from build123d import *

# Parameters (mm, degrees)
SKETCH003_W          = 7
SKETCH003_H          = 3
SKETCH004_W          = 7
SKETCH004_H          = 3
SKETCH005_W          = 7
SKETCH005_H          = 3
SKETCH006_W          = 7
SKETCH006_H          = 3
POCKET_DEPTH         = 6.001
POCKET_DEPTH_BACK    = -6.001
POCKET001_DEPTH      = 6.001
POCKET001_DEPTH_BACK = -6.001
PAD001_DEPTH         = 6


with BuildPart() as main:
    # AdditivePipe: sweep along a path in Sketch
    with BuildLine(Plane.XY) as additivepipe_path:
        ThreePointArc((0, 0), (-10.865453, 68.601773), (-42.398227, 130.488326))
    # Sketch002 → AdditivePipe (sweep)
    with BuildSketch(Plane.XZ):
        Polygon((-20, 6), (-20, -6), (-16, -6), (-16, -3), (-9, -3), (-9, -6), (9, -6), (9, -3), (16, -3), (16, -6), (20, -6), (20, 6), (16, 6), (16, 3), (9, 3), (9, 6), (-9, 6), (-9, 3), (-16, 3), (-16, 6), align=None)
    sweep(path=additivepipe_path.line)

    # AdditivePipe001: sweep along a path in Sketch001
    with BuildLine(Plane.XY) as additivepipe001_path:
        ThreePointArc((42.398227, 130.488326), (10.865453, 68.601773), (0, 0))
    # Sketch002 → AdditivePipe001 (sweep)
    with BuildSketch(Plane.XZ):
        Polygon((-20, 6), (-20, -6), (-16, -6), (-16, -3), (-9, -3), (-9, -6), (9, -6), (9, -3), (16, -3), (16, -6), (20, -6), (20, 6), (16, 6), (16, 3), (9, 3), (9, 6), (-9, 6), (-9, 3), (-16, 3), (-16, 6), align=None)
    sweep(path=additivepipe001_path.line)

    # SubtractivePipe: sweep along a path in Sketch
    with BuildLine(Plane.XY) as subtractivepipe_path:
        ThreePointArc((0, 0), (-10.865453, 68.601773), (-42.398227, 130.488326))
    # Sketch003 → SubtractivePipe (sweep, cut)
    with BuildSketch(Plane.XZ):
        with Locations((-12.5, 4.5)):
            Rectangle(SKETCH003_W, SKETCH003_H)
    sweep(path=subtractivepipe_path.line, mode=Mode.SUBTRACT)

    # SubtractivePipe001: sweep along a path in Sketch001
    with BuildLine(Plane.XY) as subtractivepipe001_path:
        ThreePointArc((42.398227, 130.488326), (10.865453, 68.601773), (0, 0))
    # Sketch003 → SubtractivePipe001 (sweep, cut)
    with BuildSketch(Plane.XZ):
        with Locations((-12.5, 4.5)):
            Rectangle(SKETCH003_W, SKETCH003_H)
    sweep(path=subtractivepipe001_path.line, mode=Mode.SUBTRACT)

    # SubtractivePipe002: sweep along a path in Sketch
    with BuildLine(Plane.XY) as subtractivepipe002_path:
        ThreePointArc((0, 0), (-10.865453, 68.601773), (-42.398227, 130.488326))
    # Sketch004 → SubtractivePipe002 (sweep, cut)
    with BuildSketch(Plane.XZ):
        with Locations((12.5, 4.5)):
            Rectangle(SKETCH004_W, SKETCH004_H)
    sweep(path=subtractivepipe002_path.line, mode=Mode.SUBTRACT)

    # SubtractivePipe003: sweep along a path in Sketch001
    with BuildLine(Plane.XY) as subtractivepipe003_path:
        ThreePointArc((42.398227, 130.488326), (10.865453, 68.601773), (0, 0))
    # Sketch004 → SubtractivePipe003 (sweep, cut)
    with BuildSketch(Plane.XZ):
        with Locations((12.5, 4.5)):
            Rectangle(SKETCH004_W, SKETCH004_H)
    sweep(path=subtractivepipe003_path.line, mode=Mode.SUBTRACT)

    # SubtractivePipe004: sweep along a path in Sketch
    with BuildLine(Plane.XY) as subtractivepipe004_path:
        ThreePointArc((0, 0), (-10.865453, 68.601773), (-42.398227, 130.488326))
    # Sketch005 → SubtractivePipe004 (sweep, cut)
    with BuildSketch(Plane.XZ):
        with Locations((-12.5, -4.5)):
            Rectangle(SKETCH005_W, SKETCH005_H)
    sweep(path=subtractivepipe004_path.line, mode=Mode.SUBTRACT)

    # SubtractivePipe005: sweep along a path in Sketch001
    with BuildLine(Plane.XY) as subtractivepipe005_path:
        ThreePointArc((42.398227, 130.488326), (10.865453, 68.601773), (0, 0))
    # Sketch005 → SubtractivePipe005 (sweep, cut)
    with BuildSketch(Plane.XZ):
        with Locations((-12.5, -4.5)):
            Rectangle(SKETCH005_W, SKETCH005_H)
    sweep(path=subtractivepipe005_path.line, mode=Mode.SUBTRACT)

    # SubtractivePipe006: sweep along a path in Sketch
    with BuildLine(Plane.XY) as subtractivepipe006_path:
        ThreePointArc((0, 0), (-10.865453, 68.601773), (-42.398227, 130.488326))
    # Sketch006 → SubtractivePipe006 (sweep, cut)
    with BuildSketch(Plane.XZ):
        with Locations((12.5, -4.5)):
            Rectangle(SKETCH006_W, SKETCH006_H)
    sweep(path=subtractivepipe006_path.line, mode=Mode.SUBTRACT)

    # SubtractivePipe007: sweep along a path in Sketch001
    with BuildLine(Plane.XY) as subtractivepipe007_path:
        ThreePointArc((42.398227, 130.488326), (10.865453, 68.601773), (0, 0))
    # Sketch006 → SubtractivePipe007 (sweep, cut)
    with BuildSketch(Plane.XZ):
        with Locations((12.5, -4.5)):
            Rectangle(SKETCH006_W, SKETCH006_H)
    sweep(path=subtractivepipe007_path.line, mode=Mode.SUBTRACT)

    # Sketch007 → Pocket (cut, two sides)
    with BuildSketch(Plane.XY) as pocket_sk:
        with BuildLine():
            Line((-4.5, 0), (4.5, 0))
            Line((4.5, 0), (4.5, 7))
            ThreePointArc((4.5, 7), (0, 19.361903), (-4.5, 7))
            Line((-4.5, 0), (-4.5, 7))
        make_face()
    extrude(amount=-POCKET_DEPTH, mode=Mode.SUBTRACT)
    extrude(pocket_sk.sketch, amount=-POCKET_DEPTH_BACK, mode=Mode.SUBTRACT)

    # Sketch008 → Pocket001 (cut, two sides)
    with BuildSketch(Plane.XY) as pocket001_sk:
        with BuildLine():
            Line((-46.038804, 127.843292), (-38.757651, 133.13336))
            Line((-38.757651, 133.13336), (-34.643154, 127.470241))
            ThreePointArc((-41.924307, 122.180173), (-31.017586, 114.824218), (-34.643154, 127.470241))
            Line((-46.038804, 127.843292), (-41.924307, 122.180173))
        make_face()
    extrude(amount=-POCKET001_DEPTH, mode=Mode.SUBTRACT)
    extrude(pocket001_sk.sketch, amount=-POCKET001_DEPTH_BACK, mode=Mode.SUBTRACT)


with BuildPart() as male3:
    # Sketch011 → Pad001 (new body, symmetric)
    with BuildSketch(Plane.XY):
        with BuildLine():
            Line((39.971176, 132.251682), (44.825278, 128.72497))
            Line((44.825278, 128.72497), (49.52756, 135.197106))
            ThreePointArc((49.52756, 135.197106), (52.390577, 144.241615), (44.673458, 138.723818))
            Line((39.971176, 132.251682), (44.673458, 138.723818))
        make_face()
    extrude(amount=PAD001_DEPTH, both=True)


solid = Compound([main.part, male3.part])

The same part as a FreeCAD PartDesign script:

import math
import FreeCAD as App
import Part
import Sketcher
Q = App.Units.Quantity


def add_polygon(sketch, points):
    """Adds a closed chain of lines whose ends are joined by coincident constraints."""
    first, n = sketch.GeometryCount, len(points)
    for a, b in zip(points, points[1:] + points[:1]):
        sketch.addGeometry(Part.LineSegment(App.Vector(*a, 0), App.Vector(*b, 0)), False)
    for i in range(n):
        sketch.addConstraint(Sketcher.Constraint("Coincident", first + i, 2, first + (i + 1) % n, 1))

doc = App.newDocument("Part")
body = doc.addObject("PartDesign::Body", "Body")

# Sketch on XZ plane
sketch1 = body.newObject("Sketcher::SketchObject", "Sketch")
sketch1.AttachmentSupport = (doc.getObject("XZ_Plane"), [""])
sketch1.MapMode = "FlatFace"
add_polygon(sketch1, [(-20, 6), (-20, -6), (-16, -6), (-16, -3), (-9, -3), (-9, -6), (9, -6), (9, -3), (16, -3), (16, -6), (20, -6), (20, 6), (16, 6), (16, 3), (9, 3), (9, 6), (-9, 6), (-9, 3), (-16, 3), (-16, 6)])  # lines 0-19
sketch1.addConstraint(Sketcher.Constraint("Vertical", 0))
sketch1.addConstraint(Sketcher.Constraint("Horizontal", 1))
sketch1.addConstraint(Sketcher.Constraint("Vertical", 2))
sketch1.addConstraint(Sketcher.Constraint("Horizontal", 3))
sketch1.addConstraint(Sketcher.Constraint("Vertical", 4))
sketch1.addConstraint(Sketcher.Constraint("Horizontal", 5))
sketch1.addConstraint(Sketcher.Constraint("Vertical", 6))
sketch1.addConstraint(Sketcher.Constraint("Horizontal", 7))
sketch1.addConstraint(Sketcher.Constraint("Vertical", 8))
sketch1.addConstraint(Sketcher.Constraint("Horizontal", 9))
sketch1.addConstraint(Sketcher.Constraint("Vertical", 10))
sketch1.addConstraint(Sketcher.Constraint("Horizontal", 11))
sketch1.addConstraint(Sketcher.Constraint("Vertical", 12))
sketch1.addConstraint(Sketcher.Constraint("Horizontal", 13))
sketch1.addConstraint(Sketcher.Constraint("Vertical", 14))
sketch1.addConstraint(Sketcher.Constraint("Horizontal", 15))
sketch1.addConstraint(Sketcher.Constraint("Vertical", 16))
sketch1.addConstraint(Sketcher.Constraint("Horizontal", 17))
sketch1.addConstraint(Sketcher.Constraint("Vertical", 18))
sketch1.addConstraint(Sketcher.Constraint("Horizontal", 19))
sketch1.addConstraint(Sketcher.Constraint("Symmetric", 0, 2, 10, 2, -1, 1))
sketch1.addConstraint(Sketcher.Constraint("Symmetric", 2, 2, 12, 2, -1, 1))
sketch1.addConstraint(Sketcher.Constraint("Symmetric", 4, 2, 14, 2, -1, 1))
sketch1.addConstraint(Sketcher.Constraint("Symmetric", 6, 2, 16, 2, -1, 1))
sketch1.addConstraint(Sketcher.Constraint("Symmetric", 8, 2, 18, 2, -1, 1))
sketch1.addConstraint(Sketcher.Constraint("Symmetric", 3, 2, 6, 2, -2))
sketch1.addConstraint(Sketcher.Constraint("Symmetric", 1, 2, 8, 2, -2))
sketch1.addConstraint(Sketcher.Constraint("Horizontal", 1, 2, 4, 2))
sketch1.addConstraint(Sketcher.Constraint("DistanceX", 1, 1, 1, 2, Q("4 mm")))
sketch1.addConstraint(Sketcher.Constraint("DistanceX", 3, 1, 3, 2, Q("7 mm")))
sketch1.addConstraint(Sketcher.Constraint("DistanceX", 5, 1, 5, 2, Q("18 mm")))
sketch1.addConstraint(Sketcher.Constraint("DistanceY", 0, 2, 0, 1, Q("12 mm")))
sketch1.addConstraint(Sketcher.Constraint("DistanceY", 2, 1, 2, 2, Q("3 mm")))

# Sketch on XY plane
sketch2 = body.newObject("Sketcher::SketchObject", "Sketch001")
sketch2.AttachmentSupport = (doc.getObject("XY_Plane"), [""])
sketch2.MapMode = "FlatFace"
sketch2.addGeometry(Part.ArcOfCircle(Part.Circle(App.Vector(-222, 0, 0), App.Vector(0, 0, 1), 222), math.radians(0), math.radians(36)), False)
sketch2.addConstraint(Sketcher.Constraint("Coincident", 0, 1, -1, 1))
sketch2.addConstraint(Sketcher.Constraint("Radius", 0, Q("221.999993 mm")))
sketch2.addConstraint(Sketcher.Constraint("DistanceX", 0, 2, -1, 1, Q("42.398227 mm")))
sketch2.addConstraint(Sketcher.Constraint("DistanceY", -1, 1, 0, 2, Q("130.488326 mm")))
doc.recompute()

additivepipe = body.newObject("PartDesign::AdditivePipe", "AdditivePipe")
additivepipe.Profile = sketch1
additivepipe.Spine = (sketch2, ["Edge1"])

# Sketch on XZ plane
sketch3 = body.newObject("Sketcher::SketchObject", "Sketch002")
sketch3.AttachmentSupport = (doc.getObject("XZ_Plane"), [""])
sketch3.MapMode = "FlatFace"
add_polygon(sketch3, [(-20, 6), (-20, -6), (-16, -6), (-16, -3), (-9, -3), (-9, -6), (9, -6), (9, -3), (16, -3), (16, -6), (20, -6), (20, 6), (16, 6), (16, 3), (9, 3), (9, 6), (-9, 6), (-9, 3), (-16, 3), (-16, 6)])  # lines 0-19
sketch3.addConstraint(Sketcher.Constraint("Vertical", 0))
sketch3.addConstraint(Sketcher.Constraint("Horizontal", 1))
sketch3.addConstraint(Sketcher.Constraint("Vertical", 2))
sketch3.addConstraint(Sketcher.Constraint("Horizontal", 3))
sketch3.addConstraint(Sketcher.Constraint("Vertical", 4))
sketch3.addConstraint(Sketcher.Constraint("Horizontal", 5))
sketch3.addConstraint(Sketcher.Constraint("Vertical", 6))
sketch3.addConstraint(Sketcher.Constraint("Horizontal", 7))
sketch3.addConstraint(Sketcher.Constraint("Vertical", 8))
sketch3.addConstraint(Sketcher.Constraint("Horizontal", 9))
sketch3.addConstraint(Sketcher.Constraint("Vertical", 10))
sketch3.addConstraint(Sketcher.Constraint("Horizontal", 11))
sketch3.addConstraint(Sketcher.Constraint("Vertical", 12))
sketch3.addConstraint(Sketcher.Constraint("Horizontal", 13))
sketch3.addConstraint(Sketcher.Constraint("Vertical", 14))
sketch3.addConstraint(Sketcher.Constraint("Horizontal", 15))
sketch3.addConstraint(Sketcher.Constraint("Vertical", 16))
sketch3.addConstraint(Sketcher.Constraint("Horizontal", 17))
sketch3.addConstraint(Sketcher.Constraint("Vertical", 18))
sketch3.addConstraint(Sketcher.Constraint("Horizontal", 19))
sketch3.addConstraint(Sketcher.Constraint("Symmetric", 0, 2, 10, 2, -1, 1))
sketch3.addConstraint(Sketcher.Constraint("Symmetric", 2, 2, 12, 2, -1, 1))
sketch3.addConstraint(Sketcher.Constraint("Symmetric", 4, 2, 14, 2, -1, 1))
sketch3.addConstraint(Sketcher.Constraint("Symmetric", 6, 2, 16, 2, -1, 1))
sketch3.addConstraint(Sketcher.Constraint("Symmetric", 8, 2, 18, 2, -1, 1))
sketch3.addConstraint(Sketcher.Constraint("Symmetric", 3, 2, 6, 2, -2))
sketch3.addConstraint(Sketcher.Constraint("Symmetric", 1, 2, 8, 2, -2))
sketch3.addConstraint(Sketcher.Constraint("Horizontal", 1, 2, 4, 2))
sketch3.addConstraint(Sketcher.Constraint("DistanceX", 1, 1, 1, 2, Q("4 mm")))
sketch3.addConstraint(Sketcher.Constraint("DistanceX", 3, 1, 3, 2, Q("7 mm")))
sketch3.addConstraint(Sketcher.Constraint("DistanceX", 5, 1, 5, 2, Q("18 mm")))
sketch3.addConstraint(Sketcher.Constraint("DistanceY", 0, 2, 0, 1, Q("12 mm")))
sketch3.addConstraint(Sketcher.Constraint("DistanceY", 2, 1, 2, 2, Q("3 mm")))

# Sketch on XY plane
sketch4 = body.newObject("Sketcher::SketchObject", "Sketch003")
sketch4.AttachmentSupport = (doc.getObject("XY_Plane"), [""])
sketch4.MapMode = "FlatFace"
sketch4.addGeometry(Part.ArcOfCircle(Part.Circle(App.Vector(222, 0, 0), App.Vector(0, 0, 1), 222), math.radians(144), math.radians(180)), False)
sketch4.addConstraint(Sketcher.Constraint("Coincident", 0, 2, -1, 1))
sketch4.addConstraint(Sketcher.Constraint("Radius", 0, Q("221.999993 mm")))
sketch4.addConstraint(Sketcher.Constraint("DistanceX", -1, 1, 0, 1, Q("42.398227 mm")))
sketch4.addConstraint(Sketcher.Constraint("DistanceY", -1, 1, 0, 1, Q("130.488326 mm")))
doc.recompute()

additivepipe2 = body.newObject("PartDesign::AdditivePipe", "AdditivePipe001")
additivepipe2.Profile = sketch3
additivepipe2.Spine = (sketch4, ["Edge1"])

# Sketch on XZ plane
sketch5 = body.newObject("Sketcher::SketchObject", "Sketch004")
sketch5.AttachmentSupport = (doc.getObject("XZ_Plane"), [""])
sketch5.MapMode = "FlatFace"
add_polygon(sketch5, [(-16, 6), (-16, 3), (-9, 3), (-9, 6)])  # lines 0-3
sketch5.addConstraint(Sketcher.Constraint("Vertical", 0))
sketch5.addConstraint(Sketcher.Constraint("Horizontal", 1))
sketch5.addConstraint(Sketcher.Constraint("Vertical", 2))
sketch5.addConstraint(Sketcher.Constraint("Horizontal", 3))
sketch5.addConstraint(Sketcher.Constraint("DistanceX", 1, 1, 1, 2, Q("7 mm")))
sketch5.addConstraint(Sketcher.Constraint("DistanceY", 0, 2, 0, 1, Q("3 mm")))
sketch5.addConstraint(Sketcher.Constraint("DistanceX", 0, 2, -1, 1, Q("16 mm")))
sketch5.addConstraint(Sketcher.Constraint("DistanceY", -1, 1, 0, 2, Q("3 mm")))

# Sketch on XY plane
sketch6 = body.newObject("Sketcher::SketchObject", "Sketch005")
sketch6.AttachmentSupport = (doc.getObject("XY_Plane"), [""])
sketch6.MapMode = "FlatFace"
sketch6.addGeometry(Part.ArcOfCircle(Part.Circle(App.Vector(-222, 0, 0), App.Vector(0, 0, 1), 222), math.radians(0), math.radians(36)), False)
sketch6.addConstraint(Sketcher.Constraint("Coincident", 0, 1, -1, 1))
sketch6.addConstraint(Sketcher.Constraint("Radius", 0, Q("221.999993 mm")))
sketch6.addConstraint(Sketcher.Constraint("DistanceX", 0, 2, -1, 1, Q("42.398227 mm")))
sketch6.addConstraint(Sketcher.Constraint("DistanceY", -1, 1, 0, 2, Q("130.488326 mm")))
doc.recompute()

subtractivepipe = body.newObject("PartDesign::SubtractivePipe", "SubtractivePipe")
subtractivepipe.Profile = sketch5
subtractivepipe.Spine = (sketch6, ["Edge1"])

# Sketch on XZ plane
sketch7 = body.newObject("Sketcher::SketchObject", "Sketch006")
sketch7.AttachmentSupport = (doc.getObject("XZ_Plane"), [""])
sketch7.MapMode = "FlatFace"
add_polygon(sketch7, [(-16, 6), (-16, 3), (-9, 3), (-9, 6)])  # lines 0-3
sketch7.addConstraint(Sketcher.Constraint("Vertical", 0))
sketch7.addConstraint(Sketcher.Constraint("Horizontal", 1))
sketch7.addConstraint(Sketcher.Constraint("Vertical", 2))
sketch7.addConstraint(Sketcher.Constraint("Horizontal", 3))
sketch7.addConstraint(Sketcher.Constraint("DistanceX", 1, 1, 1, 2, Q("7 mm")))
sketch7.addConstraint(Sketcher.Constraint("DistanceY", 0, 2, 0, 1, Q("3 mm")))
sketch7.addConstraint(Sketcher.Constraint("DistanceX", 0, 2, -1, 1, Q("16 mm")))
sketch7.addConstraint(Sketcher.Constraint("DistanceY", -1, 1, 0, 2, Q("3 mm")))

# Sketch on XY plane
sketch8 = body.newObject("Sketcher::SketchObject", "Sketch007")
sketch8.AttachmentSupport = (doc.getObject("XY_Plane"), [""])
sketch8.MapMode = "FlatFace"
sketch8.addGeometry(Part.ArcOfCircle(Part.Circle(App.Vector(222, 0, 0), App.Vector(0, 0, 1), 222), math.radians(144), math.radians(180)), False)
sketch8.addConstraint(Sketcher.Constraint("Coincident", 0, 2, -1, 1))
sketch8.addConstraint(Sketcher.Constraint("Radius", 0, Q("221.999993 mm")))
sketch8.addConstraint(Sketcher.Constraint("DistanceX", -1, 1, 0, 1, Q("42.398227 mm")))
sketch8.addConstraint(Sketcher.Constraint("DistanceY", -1, 1, 0, 1, Q("130.488326 mm")))
doc.recompute()

subtractivepipe2 = body.newObject("PartDesign::SubtractivePipe", "SubtractivePipe001")
subtractivepipe2.Profile = sketch7
subtractivepipe2.Spine = (sketch8, ["Edge1"])

# Sketch on XZ plane
sketch9 = body.newObject("Sketcher::SketchObject", "Sketch008")
sketch9.AttachmentSupport = (doc.getObject("XZ_Plane"), [""])
sketch9.MapMode = "FlatFace"
add_polygon(sketch9, [(9, 6), (9, 3), (16, 3), (16, 6)])  # lines 0-3
sketch9.addConstraint(Sketcher.Constraint("Vertical", 0))
sketch9.addConstraint(Sketcher.Constraint("Horizontal", 1))
sketch9.addConstraint(Sketcher.Constraint("Vertical", 2))
sketch9.addConstraint(Sketcher.Constraint("Horizontal", 3))
sketch9.addConstraint(Sketcher.Constraint("DistanceX", 1, 1, 1, 2, Q("7 mm")))
sketch9.addConstraint(Sketcher.Constraint("DistanceY", 0, 2, 0, 1, Q("3 mm")))
sketch9.addConstraint(Sketcher.Constraint("DistanceX", -1, 1, 0, 2, Q("9 mm")))
sketch9.addConstraint(Sketcher.Constraint("DistanceY", -1, 1, 0, 2, Q("3 mm")))

# Sketch on XY plane
sketch10 = body.newObject("Sketcher::SketchObject", "Sketch009")
sketch10.AttachmentSupport = (doc.getObject("XY_Plane"), [""])
sketch10.MapMode = "FlatFace"
sketch10.addGeometry(Part.ArcOfCircle(Part.Circle(App.Vector(-222, 0, 0), App.Vector(0, 0, 1), 222), math.radians(0), math.radians(36)), False)
sketch10.addConstraint(Sketcher.Constraint("Coincident", 0, 1, -1, 1))
sketch10.addConstraint(Sketcher.Constraint("Radius", 0, Q("221.999993 mm")))
sketch10.addConstraint(Sketcher.Constraint("DistanceX", 0, 2, -1, 1, Q("42.398227 mm")))
sketch10.addConstraint(Sketcher.Constraint("DistanceY", -1, 1, 0, 2, Q("130.488326 mm")))
doc.recompute()

subtractivepipe3 = body.newObject("PartDesign::SubtractivePipe", "SubtractivePipe002")
subtractivepipe3.Profile = sketch9
subtractivepipe3.Spine = (sketch10, ["Edge1"])

# Sketch on XZ plane
sketch11 = body.newObject("Sketcher::SketchObject", "Sketch010")
sketch11.AttachmentSupport = (doc.getObject("XZ_Plane"), [""])
sketch11.MapMode = "FlatFace"
add_polygon(sketch11, [(9, 6), (9, 3), (16, 3), (16, 6)])  # lines 0-3
sketch11.addConstraint(Sketcher.Constraint("Vertical", 0))
sketch11.addConstraint(Sketcher.Constraint("Horizontal", 1))
sketch11.addConstraint(Sketcher.Constraint("Vertical", 2))
sketch11.addConstraint(Sketcher.Constraint("Horizontal", 3))
sketch11.addConstraint(Sketcher.Constraint("DistanceX", 1, 1, 1, 2, Q("7 mm")))
sketch11.addConstraint(Sketcher.Constraint("DistanceY", 0, 2, 0, 1, Q("3 mm")))
sketch11.addConstraint(Sketcher.Constraint("DistanceX", -1, 1, 0, 2, Q("9 mm")))
sketch11.addConstraint(Sketcher.Constraint("DistanceY", -1, 1, 0, 2, Q("3 mm")))

# Sketch on XY plane
sketch12 = body.newObject("Sketcher::SketchObject", "Sketch011")
sketch12.AttachmentSupport = (doc.getObject("XY_Plane"), [""])
sketch12.MapMode = "FlatFace"
sketch12.addGeometry(Part.ArcOfCircle(Part.Circle(App.Vector(222, 0, 0), App.Vector(0, 0, 1), 222), math.radians(144), math.radians(180)), False)
sketch12.addConstraint(Sketcher.Constraint("Coincident", 0, 2, -1, 1))
sketch12.addConstraint(Sketcher.Constraint("Radius", 0, Q("221.999993 mm")))
sketch12.addConstraint(Sketcher.Constraint("DistanceX", -1, 1, 0, 1, Q("42.398227 mm")))
sketch12.addConstraint(Sketcher.Constraint("DistanceY", -1, 1, 0, 1, Q("130.488326 mm")))
doc.recompute()

subtractivepipe4 = body.newObject("PartDesign::SubtractivePipe", "SubtractivePipe003")
subtractivepipe4.Profile = sketch11
subtractivepipe4.Spine = (sketch12, ["Edge1"])

# Sketch on XZ plane
sketch13 = body.newObject("Sketcher::SketchObject", "Sketch012")
sketch13.AttachmentSupport = (doc.getObject("XZ_Plane"), [""])
sketch13.MapMode = "FlatFace"
add_polygon(sketch13, [(-16, -3), (-16, -6), (-9, -6), (-9, -3)])  # lines 0-3
sketch13.addConstraint(Sketcher.Constraint("Vertical", 0))
sketch13.addConstraint(Sketcher.Constraint("Horizontal", 1))
sketch13.addConstraint(Sketcher.Constraint("Vertical", 2))
sketch13.addConstraint(Sketcher.Constraint("Horizontal", 3))
sketch13.addConstraint(Sketcher.Constraint("DistanceX", 1, 1, 1, 2, Q("7 mm")))
sketch13.addConstraint(Sketcher.Constraint("DistanceY", 0, 2, 0, 1, Q("3 mm")))
sketch13.addConstraint(Sketcher.Constraint("DistanceX", 0, 2, -1, 1, Q("16 mm")))
sketch13.addConstraint(Sketcher.Constraint("DistanceY", 0, 2, -1, 1, Q("6 mm")))

# Sketch on XY plane
sketch14 = body.newObject("Sketcher::SketchObject", "Sketch013")
sketch14.AttachmentSupport = (doc.getObject("XY_Plane"), [""])
sketch14.MapMode = "FlatFace"
sketch14.addGeometry(Part.ArcOfCircle(Part.Circle(App.Vector(-222, 0, 0), App.Vector(0, 0, 1), 222), math.radians(0), math.radians(36)), False)
sketch14.addConstraint(Sketcher.Constraint("Coincident", 0, 1, -1, 1))
sketch14.addConstraint(Sketcher.Constraint("Radius", 0, Q("221.999993 mm")))
sketch14.addConstraint(Sketcher.Constraint("DistanceX", 0, 2, -1, 1, Q("42.398227 mm")))
sketch14.addConstraint(Sketcher.Constraint("DistanceY", -1, 1, 0, 2, Q("130.488326 mm")))
doc.recompute()

subtractivepipe5 = body.newObject("PartDesign::SubtractivePipe", "SubtractivePipe004")
subtractivepipe5.Profile = sketch13
subtractivepipe5.Spine = (sketch14, ["Edge1"])

# Sketch on XZ plane
sketch15 = body.newObject("Sketcher::SketchObject", "Sketch014")
sketch15.AttachmentSupport = (doc.getObject("XZ_Plane"), [""])
sketch15.MapMode = "FlatFace"
add_polygon(sketch15, [(-16, -3), (-16, -6), (-9, -6), (-9, -3)])  # lines 0-3
sketch15.addConstraint(Sketcher.Constraint("Vertical", 0))
sketch15.addConstraint(Sketcher.Constraint("Horizontal", 1))
sketch15.addConstraint(Sketcher.Constraint("Vertical", 2))
sketch15.addConstraint(Sketcher.Constraint("Horizontal", 3))
sketch15.addConstraint(Sketcher.Constraint("DistanceX", 1, 1, 1, 2, Q("7 mm")))
sketch15.addConstraint(Sketcher.Constraint("DistanceY", 0, 2, 0, 1, Q("3 mm")))
sketch15.addConstraint(Sketcher.Constraint("DistanceX", 0, 2, -1, 1, Q("16 mm")))
sketch15.addConstraint(Sketcher.Constraint("DistanceY", 0, 2, -1, 1, Q("6 mm")))

# Sketch on XY plane
sketch16 = body.newObject("Sketcher::SketchObject", "Sketch015")
sketch16.AttachmentSupport = (doc.getObject("XY_Plane"), [""])
sketch16.MapMode = "FlatFace"
sketch16.addGeometry(Part.ArcOfCircle(Part.Circle(App.Vector(222, 0, 0), App.Vector(0, 0, 1), 222), math.radians(144), math.radians(180)), False)
sketch16.addConstraint(Sketcher.Constraint("Coincident", 0, 2, -1, 1))
sketch16.addConstraint(Sketcher.Constraint("Radius", 0, Q("221.999993 mm")))
sketch16.addConstraint(Sketcher.Constraint("DistanceX", -1, 1, 0, 1, Q("42.398227 mm")))
sketch16.addConstraint(Sketcher.Constraint("DistanceY", -1, 1, 0, 1, Q("130.488326 mm")))
doc.recompute()

subtractivepipe6 = body.newObject("PartDesign::SubtractivePipe", "SubtractivePipe005")
subtractivepipe6.Profile = sketch15
subtractivepipe6.Spine = (sketch16, ["Edge1"])

# Sketch on XZ plane
sketch17 = body.newObject("Sketcher::SketchObject", "Sketch016")
sketch17.AttachmentSupport = (doc.getObject("XZ_Plane"), [""])
sketch17.MapMode = "FlatFace"
add_polygon(sketch17, [(9, -3), (9, -6), (16, -6), (16, -3)])  # lines 0-3
sketch17.addConstraint(Sketcher.Constraint("Vertical", 0))
sketch17.addConstraint(Sketcher.Constraint("Horizontal", 1))
sketch17.addConstraint(Sketcher.Constraint("Vertical", 2))
sketch17.addConstraint(Sketcher.Constraint("Horizontal", 3))
sketch17.addConstraint(Sketcher.Constraint("DistanceX", 1, 1, 1, 2, Q("7 mm")))
sketch17.addConstraint(Sketcher.Constraint("DistanceY", 0, 2, 0, 1, Q("3 mm")))
sketch17.addConstraint(Sketcher.Constraint("DistanceX", -1, 1, 0, 2, Q("9 mm")))
sketch17.addConstraint(Sketcher.Constraint("DistanceY", 0, 2, -1, 1, Q("6 mm")))

# Sketch on XY plane
sketch18 = body.newObject("Sketcher::SketchObject", "Sketch017")
sketch18.AttachmentSupport = (doc.getObject("XY_Plane"), [""])
sketch18.MapMode = "FlatFace"
sketch18.addGeometry(Part.ArcOfCircle(Part.Circle(App.Vector(-222, 0, 0), App.Vector(0, 0, 1), 222), math.radians(0), math.radians(36)), False)
sketch18.addConstraint(Sketcher.Constraint("Coincident", 0, 1, -1, 1))
sketch18.addConstraint(Sketcher.Constraint("Radius", 0, Q("221.999993 mm")))
sketch18.addConstraint(Sketcher.Constraint("DistanceX", 0, 2, -1, 1, Q("42.398227 mm")))
sketch18.addConstraint(Sketcher.Constraint("DistanceY", -1, 1, 0, 2, Q("130.488326 mm")))
doc.recompute()

subtractivepipe7 = body.newObject("PartDesign::SubtractivePipe", "SubtractivePipe006")
subtractivepipe7.Profile = sketch17
subtractivepipe7.Spine = (sketch18, ["Edge1"])

# Sketch on XZ plane
sketch19 = body.newObject("Sketcher::SketchObject", "Sketch018")
sketch19.AttachmentSupport = (doc.getObject("XZ_Plane"), [""])
sketch19.MapMode = "FlatFace"
add_polygon(sketch19, [(9, -3), (9, -6), (16, -6), (16, -3)])  # lines 0-3
sketch19.addConstraint(Sketcher.Constraint("Vertical", 0))
sketch19.addConstraint(Sketcher.Constraint("Horizontal", 1))
sketch19.addConstraint(Sketcher.Constraint("Vertical", 2))
sketch19.addConstraint(Sketcher.Constraint("Horizontal", 3))
sketch19.addConstraint(Sketcher.Constraint("DistanceX", 1, 1, 1, 2, Q("7 mm")))
sketch19.addConstraint(Sketcher.Constraint("DistanceY", 0, 2, 0, 1, Q("3 mm")))
sketch19.addConstraint(Sketcher.Constraint("DistanceX", -1, 1, 0, 2, Q("9 mm")))
sketch19.addConstraint(Sketcher.Constraint("DistanceY", 0, 2, -1, 1, Q("6 mm")))

# Sketch on XY plane
sketch20 = body.newObject("Sketcher::SketchObject", "Sketch019")
sketch20.AttachmentSupport = (doc.getObject("XY_Plane"), [""])
sketch20.MapMode = "FlatFace"
sketch20.addGeometry(Part.ArcOfCircle(Part.Circle(App.Vector(222, 0, 0), App.Vector(0, 0, 1), 222), math.radians(144), math.radians(180)), False)
sketch20.addConstraint(Sketcher.Constraint("Coincident", 0, 2, -1, 1))
sketch20.addConstraint(Sketcher.Constraint("Radius", 0, Q("221.999993 mm")))
sketch20.addConstraint(Sketcher.Constraint("DistanceX", -1, 1, 0, 1, Q("42.398227 mm")))
sketch20.addConstraint(Sketcher.Constraint("DistanceY", -1, 1, 0, 1, Q("130.488326 mm")))
doc.recompute()

subtractivepipe8 = body.newObject("PartDesign::SubtractivePipe", "SubtractivePipe007")
subtractivepipe8.Profile = sketch19
subtractivepipe8.Spine = (sketch20, ["Edge1"])

# Sketch on XY plane
sketch21 = body.newObject("Sketcher::SketchObject", "Sketch020")
sketch21.AttachmentSupport = (doc.getObject("XY_Plane"), [""])
sketch21.MapMode = "FlatFace"
sketch21.addGeometry(Part.LineSegment(App.Vector(-4, 0, 0), App.Vector(4, 0, 0)), False)
sketch21.addGeometry(Part.LineSegment(App.Vector(4, 0, 0), App.Vector(4, 7, 0)), False)
sketch21.addGeometry(Part.ArcOfCircle(Part.Circle(App.Vector(0, 12, 0), App.Vector(0, 0, 1), 7), math.radians(-50), math.radians(230)), False)
sketch21.addGeometry(Part.LineSegment(App.Vector(-4, 7, 0), App.Vector(-4, 0, 0)), False)
sketch21.addConstraint(Sketcher.Constraint("Coincident", 0, 2, 1, 1))
sketch21.addConstraint(Sketcher.Constraint("Coincident", 1, 2, 2, 1))
sketch21.addConstraint(Sketcher.Constraint("Coincident", 2, 2, 3, 1))
sketch21.addConstraint(Sketcher.Constraint("Coincident", 3, 2, 0, 1))
sketch21.addConstraint(Sketcher.Constraint("Horizontal", 0))
sketch21.addConstraint(Sketcher.Constraint("Vertical", 1))
sketch21.addConstraint(Sketcher.Constraint("Vertical", 3))
sketch21.addConstraint(Sketcher.Constraint("Symmetric", 0, 2, 3, 2, -1, 1))
sketch21.addConstraint(Sketcher.Constraint("PointOnObject", 2, 3, -2))
sketch21.addConstraint(Sketcher.Constraint("Radius", 2, Q("7 mm")))
sketch21.addConstraint(Sketcher.Constraint("DistanceX", 0, 1, 0, 2, Q("9 mm")))
sketch21.addConstraint(Sketcher.Constraint("DistanceY", 1, 1, 1, 2, Q("7 mm")))
pocket1 = body.newObject("PartDesign::Pocket", "Pocket")
pocket1.Profile = sketch21
pocket1.Type = "ThroughAll"
pocket1.Midplane = True

# Sketch on XY plane
sketch22 = body.newObject("Sketcher::SketchObject", "Sketch021")
sketch22.AttachmentSupport = (doc.getObject("XY_Plane"), [""])
sketch22.MapMode = "FlatFace"
sketch22.addGeometry(Part.LineSegment(App.Vector(-39, 133, 0), App.Vector(-46, 128, 0)), False)
sketch22.addGeometry(Part.LineSegment(App.Vector(-46, 128, 0), App.Vector(-42, 122, 0)), False)
sketch22.addGeometry(Part.ArcOfCircle(Part.Circle(App.Vector(-35, 120, 0), App.Vector(0, 0, 1), 7), math.radians(166), math.radians(446)), False)
sketch22.addGeometry(Part.LineSegment(App.Vector(-35, 127, 0), App.Vector(-39, 133, 0)), False)
sketch22.addConstraint(Sketcher.Constraint("Coincident", 0, 2, 1, 1))
sketch22.addConstraint(Sketcher.Constraint("Coincident", 1, 2, 2, 1))
sketch22.addConstraint(Sketcher.Constraint("Coincident", 2, 2, 3, 1))
sketch22.addConstraint(Sketcher.Constraint("Coincident", 3, 2, 0, 1))
sketch22.addConstraint(Sketcher.Constraint("Perpendicular", 0, 1))
sketch22.addConstraint(Sketcher.Constraint("Parallel", 1, 3))
sketch22.addConstraint(Sketcher.Constraint("Equal", 1, 3))
sketch22.addConstraint(Sketcher.Constraint("Radius", 2, Q("7 mm")))
sketch22.addConstraint(Sketcher.Constraint("Angle", 0, Q("-143.999996 deg")))
sketch22.addConstraint(Sketcher.Constraint("Distance", 0, Q("9 mm")))
sketch22.addConstraint(Sketcher.Constraint("Distance", 1, Q("7 mm")))
sketch22.addConstraint(Sketcher.Constraint("DistanceY", -1, 1, 2, 2, Q("127.470241 mm")))
sketch22.addConstraint(Sketcher.Constraint("DistanceX", 3, 2, -1, 1, Q("38.757651 mm")))
pocket2 = body.newObject("PartDesign::Pocket", "Pocket001")
pocket2.Profile = sketch22
pocket2.Type = "ThroughAll"
pocket2.Midplane = True
body2 = doc.addObject("PartDesign::Body", "Body001")

# Sketch on XY plane
sketch23 = body2.newObject("Sketcher::SketchObject", "Sketch022")
sketch23.AttachmentSupport = (doc.getObject("XY_Plane001"), [""])
sketch23.MapMode = "FlatFace"
sketch23.addGeometry(Part.LineSegment(App.Vector(40, 132, 0), App.Vector(45, 129, 0)), False)
sketch23.addGeometry(Part.LineSegment(App.Vector(45, 129, 0), App.Vector(50, 135, 0)), False)
sketch23.addGeometry(Part.ArcOfCircle(Part.Circle(App.Vector(49, 140, 0), App.Vector(0, 0, 1), 5), math.radians(-89), math.radians(197)), False)
sketch23.addGeometry(Part.LineSegment(App.Vector(45, 139, 0), App.Vector(40, 132, 0)), False)
sketch23.addConstraint(Sketcher.Constraint("Coincident", 0, 2, 1, 1))
sketch23.addConstraint(Sketcher.Constraint("Coincident", 1, 2, 2, 1))
sketch23.addConstraint(Sketcher.Constraint("Coincident", 2, 2, 3, 1))
sketch23.addConstraint(Sketcher.Constraint("Coincident", 3, 2, 0, 1))
sketch23.addConstraint(Sketcher.Constraint("Perpendicular", 0, 1))
sketch23.addConstraint(Sketcher.Constraint("Parallel", 1, 3))
sketch23.addConstraint(Sketcher.Constraint("Equal", 1, 3))
sketch23.addConstraint(Sketcher.Constraint("Radius", 2, Q("5 mm")))
sketch23.addConstraint(Sketcher.Constraint("Angle", 0, Q("-36.000004 deg")))
sketch23.addConstraint(Sketcher.Constraint("Distance", 0, Q("6 mm")))
sketch23.addConstraint(Sketcher.Constraint("Distance", 1, Q("8 mm")))
sketch23.addConstraint(Sketcher.Constraint("DistanceX", -1, 1, 2, 3, Q("49.45165 mm")))
sketch23.addConstraint(Sketcher.Constraint("DistanceY", -1, 1, 2, 3, Q("140.19653 mm")))
pad1 = body2.newObject("PartDesign::Pad", "Pad")
pad1.Profile = sketch23
pad1.Length = 12
pad1.Midplane = True

doc.recompute()
